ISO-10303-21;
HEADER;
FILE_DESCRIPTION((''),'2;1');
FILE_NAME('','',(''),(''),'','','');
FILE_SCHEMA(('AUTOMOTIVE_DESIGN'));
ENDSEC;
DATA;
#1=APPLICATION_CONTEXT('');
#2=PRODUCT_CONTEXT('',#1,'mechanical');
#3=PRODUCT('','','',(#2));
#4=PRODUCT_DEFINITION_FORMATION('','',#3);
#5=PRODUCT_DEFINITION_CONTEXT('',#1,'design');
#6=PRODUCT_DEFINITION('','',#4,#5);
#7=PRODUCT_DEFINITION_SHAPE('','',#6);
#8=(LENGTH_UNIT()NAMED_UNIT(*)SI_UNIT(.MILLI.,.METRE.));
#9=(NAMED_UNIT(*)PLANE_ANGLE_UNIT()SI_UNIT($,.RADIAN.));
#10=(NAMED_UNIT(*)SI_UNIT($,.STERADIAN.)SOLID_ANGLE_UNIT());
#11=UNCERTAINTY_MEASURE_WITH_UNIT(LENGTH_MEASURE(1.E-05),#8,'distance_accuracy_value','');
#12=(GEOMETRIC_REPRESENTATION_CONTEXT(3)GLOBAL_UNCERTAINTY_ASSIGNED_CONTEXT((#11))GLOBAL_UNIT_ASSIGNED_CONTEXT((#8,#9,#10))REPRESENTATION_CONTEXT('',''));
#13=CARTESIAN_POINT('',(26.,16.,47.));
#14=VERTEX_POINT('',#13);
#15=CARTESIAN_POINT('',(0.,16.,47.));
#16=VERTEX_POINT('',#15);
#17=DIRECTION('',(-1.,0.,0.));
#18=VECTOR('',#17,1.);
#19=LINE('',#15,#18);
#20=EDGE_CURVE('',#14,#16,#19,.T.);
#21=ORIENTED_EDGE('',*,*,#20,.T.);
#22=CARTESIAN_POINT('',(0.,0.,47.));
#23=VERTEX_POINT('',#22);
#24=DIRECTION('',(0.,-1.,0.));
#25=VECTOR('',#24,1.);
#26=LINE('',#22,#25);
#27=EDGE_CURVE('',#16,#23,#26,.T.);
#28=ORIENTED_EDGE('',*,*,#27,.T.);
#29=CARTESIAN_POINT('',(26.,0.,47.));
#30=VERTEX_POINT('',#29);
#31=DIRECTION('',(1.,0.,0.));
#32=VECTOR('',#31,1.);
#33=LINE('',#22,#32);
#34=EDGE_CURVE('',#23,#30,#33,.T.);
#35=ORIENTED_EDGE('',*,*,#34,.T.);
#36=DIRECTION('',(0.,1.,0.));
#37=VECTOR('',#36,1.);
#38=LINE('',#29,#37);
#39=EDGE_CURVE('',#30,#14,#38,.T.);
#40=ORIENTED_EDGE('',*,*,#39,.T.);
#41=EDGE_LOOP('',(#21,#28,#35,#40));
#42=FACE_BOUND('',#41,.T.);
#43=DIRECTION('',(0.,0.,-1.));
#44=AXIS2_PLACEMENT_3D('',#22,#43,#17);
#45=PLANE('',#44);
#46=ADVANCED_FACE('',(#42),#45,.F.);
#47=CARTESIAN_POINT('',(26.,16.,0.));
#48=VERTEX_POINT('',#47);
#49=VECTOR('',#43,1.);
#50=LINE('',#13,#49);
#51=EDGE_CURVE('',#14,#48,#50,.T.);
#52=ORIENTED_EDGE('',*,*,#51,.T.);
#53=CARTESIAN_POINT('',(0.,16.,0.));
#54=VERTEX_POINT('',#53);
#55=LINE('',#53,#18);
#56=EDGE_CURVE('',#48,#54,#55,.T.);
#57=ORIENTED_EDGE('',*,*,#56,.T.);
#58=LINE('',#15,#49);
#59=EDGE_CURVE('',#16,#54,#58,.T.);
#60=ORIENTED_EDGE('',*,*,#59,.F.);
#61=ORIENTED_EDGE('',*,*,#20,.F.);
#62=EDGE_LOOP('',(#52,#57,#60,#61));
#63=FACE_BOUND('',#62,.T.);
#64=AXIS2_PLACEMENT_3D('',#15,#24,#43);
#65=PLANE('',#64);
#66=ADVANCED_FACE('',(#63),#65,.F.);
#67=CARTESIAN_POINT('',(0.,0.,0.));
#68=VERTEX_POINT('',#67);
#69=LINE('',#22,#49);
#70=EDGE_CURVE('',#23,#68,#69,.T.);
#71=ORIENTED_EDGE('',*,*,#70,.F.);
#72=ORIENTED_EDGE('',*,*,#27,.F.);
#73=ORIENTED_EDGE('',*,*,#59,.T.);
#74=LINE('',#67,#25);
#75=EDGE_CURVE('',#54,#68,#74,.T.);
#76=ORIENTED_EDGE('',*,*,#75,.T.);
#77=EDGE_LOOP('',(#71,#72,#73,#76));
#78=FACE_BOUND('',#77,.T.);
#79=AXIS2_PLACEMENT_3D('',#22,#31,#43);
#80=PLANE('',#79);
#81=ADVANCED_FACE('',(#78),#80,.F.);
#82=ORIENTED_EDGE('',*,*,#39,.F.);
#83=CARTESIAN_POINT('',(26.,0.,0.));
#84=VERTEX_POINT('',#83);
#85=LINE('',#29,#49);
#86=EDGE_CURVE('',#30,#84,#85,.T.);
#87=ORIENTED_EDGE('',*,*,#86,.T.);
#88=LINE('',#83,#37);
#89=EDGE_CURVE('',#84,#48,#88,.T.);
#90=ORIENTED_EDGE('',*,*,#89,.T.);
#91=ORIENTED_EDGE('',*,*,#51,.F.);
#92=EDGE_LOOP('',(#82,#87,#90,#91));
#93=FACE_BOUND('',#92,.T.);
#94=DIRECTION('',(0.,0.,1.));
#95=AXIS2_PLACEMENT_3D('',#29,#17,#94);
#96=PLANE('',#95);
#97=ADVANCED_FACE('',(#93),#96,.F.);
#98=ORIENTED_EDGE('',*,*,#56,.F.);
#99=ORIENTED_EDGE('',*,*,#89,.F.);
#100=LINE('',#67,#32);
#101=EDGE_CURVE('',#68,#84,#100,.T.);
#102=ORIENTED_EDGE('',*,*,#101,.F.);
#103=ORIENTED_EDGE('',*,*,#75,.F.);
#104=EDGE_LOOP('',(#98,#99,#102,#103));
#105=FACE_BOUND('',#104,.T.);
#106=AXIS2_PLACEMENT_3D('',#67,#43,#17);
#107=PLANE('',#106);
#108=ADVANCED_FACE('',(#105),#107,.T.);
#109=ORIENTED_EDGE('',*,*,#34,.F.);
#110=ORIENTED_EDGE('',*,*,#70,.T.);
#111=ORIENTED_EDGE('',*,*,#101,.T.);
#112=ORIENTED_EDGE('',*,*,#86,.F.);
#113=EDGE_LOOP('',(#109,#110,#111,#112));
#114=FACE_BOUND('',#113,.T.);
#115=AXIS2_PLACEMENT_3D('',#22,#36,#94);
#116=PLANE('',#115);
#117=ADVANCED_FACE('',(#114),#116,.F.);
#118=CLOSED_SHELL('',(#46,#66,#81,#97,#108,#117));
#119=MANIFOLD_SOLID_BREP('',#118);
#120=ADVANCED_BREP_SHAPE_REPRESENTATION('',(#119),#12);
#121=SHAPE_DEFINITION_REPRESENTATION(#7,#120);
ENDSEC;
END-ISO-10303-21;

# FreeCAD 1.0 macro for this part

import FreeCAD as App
import Part
import Sketcher
from FreeCAD import Vector

doc = App.newDocument("Part")
params = doc.addObject("Spreadsheet::Sheet", "Params")
for row, (alias, value) in enumerate([
    ("sketch1_width", "26 mm"),
    ("sketch1_height", "16 mm"),
    ("pad1_length", "47 mm"),
], start=1):
    params.set(f"A{row}", alias)
    params.set(f"B{row}", "=" + value)
    params.setAlias(f"B{row}", alias)

body = doc.addObject("PartDesign::Body", "Body")

# Sketch on XY plane
sketch1 = body.newObject("Sketcher::SketchObject", "Sketch")
sketch1.AttachmentSupport = (doc.getObject("XY_Plane"), [""])
sketch1.MapMode = "FlatFace"
sketch1.addGeometry([
    Part.LineSegment(Vector(0, 16, 0), Vector(0, 0, 0)),
    Part.LineSegment(Vector(0, 0, 0), Vector(26, 0, 0)),
    Part.LineSegment(Vector(26, 0, 0), Vector(26, 16, 0)),
    Part.LineSegment(Vector(26, 16, 0), Vector(0, 16, 0)),
], False)
sketch1.addConstraint([
    Sketcher.Constraint("Coincident", 0, 2, 1, 1),
    Sketcher.Constraint("Coincident", 1, 2, 2, 1),
    Sketcher.Constraint("Coincident", 2, 2, 3, 1),
    Sketcher.Constraint("Coincident", 3, 2, 0, 1),
    Sketcher.Constraint("Vertical", 0),
    Sketcher.Constraint("Horizontal", 1),
    Sketcher.Constraint("Vertical", 2),
    Sketcher.Constraint("Horizontal", 3),
    Sketcher.Constraint("Coincident", 0, 2, -1, 1),
    Sketcher.Constraint("DistanceX", 1, 1, 1, 2, 26.0),
    Sketcher.Constraint("DistanceY", 0, 2, 0, 1, 16.0),
])
sketch1.setExpression("Constraints[9]", "Params.sketch1_width")
sketch1.setExpression("Constraints[10]", "Params.sketch1_height")
pad1 = body.newObject("PartDesign::Pad", "Pad")
pad1.Profile = sketch1
pad1.setExpression("Length", "Params.pad1_length")

doc.recompute()
